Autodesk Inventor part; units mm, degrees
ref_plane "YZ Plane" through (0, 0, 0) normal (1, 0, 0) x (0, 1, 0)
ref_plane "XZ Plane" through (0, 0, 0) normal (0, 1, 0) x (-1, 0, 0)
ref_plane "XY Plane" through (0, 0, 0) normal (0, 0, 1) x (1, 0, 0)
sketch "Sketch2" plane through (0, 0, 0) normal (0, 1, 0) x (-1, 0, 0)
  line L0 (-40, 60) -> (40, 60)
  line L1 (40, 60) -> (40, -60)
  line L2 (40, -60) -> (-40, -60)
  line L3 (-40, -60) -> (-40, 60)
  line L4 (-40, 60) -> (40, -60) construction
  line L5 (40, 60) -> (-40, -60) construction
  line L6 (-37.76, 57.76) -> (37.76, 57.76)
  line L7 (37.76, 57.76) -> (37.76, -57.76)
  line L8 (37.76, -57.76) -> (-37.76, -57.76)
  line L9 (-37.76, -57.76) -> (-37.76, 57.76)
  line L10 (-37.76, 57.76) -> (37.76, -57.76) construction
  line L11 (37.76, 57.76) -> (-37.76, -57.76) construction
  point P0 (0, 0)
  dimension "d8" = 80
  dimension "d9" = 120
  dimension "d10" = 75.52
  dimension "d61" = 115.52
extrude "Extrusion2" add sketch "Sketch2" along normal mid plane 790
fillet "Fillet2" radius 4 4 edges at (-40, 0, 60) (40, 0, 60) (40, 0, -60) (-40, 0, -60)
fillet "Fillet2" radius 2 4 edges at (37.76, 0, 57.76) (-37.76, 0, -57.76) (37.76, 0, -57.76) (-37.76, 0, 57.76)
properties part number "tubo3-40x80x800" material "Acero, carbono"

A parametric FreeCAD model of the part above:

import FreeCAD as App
import Part
import Sketcher
Q = App.Units.Quantity


def edges_at(feature, points):
    """Names of the edges that pass closest to the given points."""
    edges = feature.Shape.Edges
    near = lambda p: min(range(len(edges)), key=lambda i: edges[i].distToShape(Part.Vertex(*p))[0])
    return sorted({f"Edge{near(p) + 1}" for p in points})

doc = App.newDocument("Part")
body = doc.addObject("PartDesign::Body", "Body")

# Sketch on XZ plane
sketch1 = body.newObject("Sketcher::SketchObject", "Sketch")
sketch1.AttachmentSupport = (doc.getObject("XZ_Plane"), [""])
sketch1.MapMode = "FlatFace"
sketch1.addGeometry(Part.LineSegment(App.Vector(-40, 60, 0), App.Vector(40, 60, 0)), False)
sketch1.addGeometry(Part.LineSegment(App.Vector(40, 60, 0), App.Vector(40, -60, 0)), False)
sketch1.addGeometry(Part.LineSegment(App.Vector(40, -60, 0), App.Vector(-40, -60, 0)), False)
sketch1.addGeometry(Part.LineSegment(App.Vector(-40, -60, 0), App.Vector(-40, 60, 0)), False)
sketch1.addGeometry(Part.LineSegment(App.Vector(38, -58, 0), App.Vector(38, 58, 0)), False)
sketch1.addGeometry(Part.LineSegment(App.Vector(38, 58, 0), App.Vector(-38, 58, 0)), False)
sketch1.addGeometry(Part.LineSegment(App.Vector(-38, 58, 0), App.Vector(-38, -58, 0)), False)
sketch1.addGeometry(Part.LineSegment(App.Vector(-38, -58, 0), App.Vector(38, -58, 0)), False)
sketch1.addConstraint(Sketcher.Constraint("Coincident", 0, 2, 1, 1))
sketch1.addConstraint(Sketcher.Constraint("Coincident", 1, 2, 2, 1))
sketch1.addConstraint(Sketcher.Constraint("Coincident", 2, 2, 3, 1))
sketch1.addConstraint(Sketcher.Constraint("Coincident", 3, 2, 0, 1))
sketch1.addConstraint(Sketcher.Constraint("Coincident", 4, 2, 5, 1))
sketch1.addConstraint(Sketcher.Constraint("Coincident", 5, 2, 6, 1))
sketch1.addConstraint(Sketcher.Constraint("Coincident", 6, 2, 7, 1))
sketch1.addConstraint(Sketcher.Constraint("Coincident", 7, 2, 4, 1))
sketch1.addConstraint(Sketcher.Constraint("Horizontal", 0))
sketch1.addConstraint(Sketcher.Constraint("Vertical", 1))
sketch1.addConstraint(Sketcher.Constraint("Horizontal", 2))
sketch1.addConstraint(Sketcher.Constraint("Vertical", 3))
sketch1.addConstraint(Sketcher.Constraint("Vertical", 4))
sketch1.addConstraint(Sketcher.Constraint("Horizontal", 5))
sketch1.addConstraint(Sketcher.Constraint("Vertical", 6))
sketch1.addConstraint(Sketcher.Constraint("Horizontal", 7))
sketch1.addConstraint(Sketcher.Constraint("Symmetric", 0, 2, 2, 2, -1, 1))
sketch1.addConstraint(Sketcher.Constraint("Symmetric", 4, 2, 6, 2, -1, 1))
sketch1.addConstraint(Sketcher.Constraint("DistanceX", 0, 1, 0, 2, Q("80 mm")))
sketch1.addConstraint(Sketcher.Constraint("DistanceY", 1, 2, 1, 1, Q("120 mm")))
sketch1.addConstraint(Sketcher.Constraint("DistanceX", 5, 2, 5, 1, Q("75.52 mm")))
sketch1.addConstraint(Sketcher.Constraint("DistanceY", 4, 1, 4, 2, Q("115.52 mm")))
pad1 = body.newObject("PartDesign::Pad", "Pad")
pad1.Profile = sketch1
pad1.Length = 790
pad1.Midplane = True
doc.recompute()

fillet = body.newObject("PartDesign::Fillet", "Fillet")
fillet.Base = (pad1, edges_at(pad1, [
    (-40, 0, 60),
    (40, 0, 60),
    (40, 0, -60),
    (-40, 0, -60),
]))
fillet.Radius = 4
doc.recompute()

fillet2 = body.newObject("PartDesign::Fillet", "Fillet001")
fillet2.Base = (fillet, edges_at(fillet, [
    (37.76, 0, 57.76),
    (-37.76, 0, -57.76),
    (37.76, 0, -57.76),
    (-37.76, 0, 57.76),
]))
fillet2.Radius = 2

doc.recompute()
